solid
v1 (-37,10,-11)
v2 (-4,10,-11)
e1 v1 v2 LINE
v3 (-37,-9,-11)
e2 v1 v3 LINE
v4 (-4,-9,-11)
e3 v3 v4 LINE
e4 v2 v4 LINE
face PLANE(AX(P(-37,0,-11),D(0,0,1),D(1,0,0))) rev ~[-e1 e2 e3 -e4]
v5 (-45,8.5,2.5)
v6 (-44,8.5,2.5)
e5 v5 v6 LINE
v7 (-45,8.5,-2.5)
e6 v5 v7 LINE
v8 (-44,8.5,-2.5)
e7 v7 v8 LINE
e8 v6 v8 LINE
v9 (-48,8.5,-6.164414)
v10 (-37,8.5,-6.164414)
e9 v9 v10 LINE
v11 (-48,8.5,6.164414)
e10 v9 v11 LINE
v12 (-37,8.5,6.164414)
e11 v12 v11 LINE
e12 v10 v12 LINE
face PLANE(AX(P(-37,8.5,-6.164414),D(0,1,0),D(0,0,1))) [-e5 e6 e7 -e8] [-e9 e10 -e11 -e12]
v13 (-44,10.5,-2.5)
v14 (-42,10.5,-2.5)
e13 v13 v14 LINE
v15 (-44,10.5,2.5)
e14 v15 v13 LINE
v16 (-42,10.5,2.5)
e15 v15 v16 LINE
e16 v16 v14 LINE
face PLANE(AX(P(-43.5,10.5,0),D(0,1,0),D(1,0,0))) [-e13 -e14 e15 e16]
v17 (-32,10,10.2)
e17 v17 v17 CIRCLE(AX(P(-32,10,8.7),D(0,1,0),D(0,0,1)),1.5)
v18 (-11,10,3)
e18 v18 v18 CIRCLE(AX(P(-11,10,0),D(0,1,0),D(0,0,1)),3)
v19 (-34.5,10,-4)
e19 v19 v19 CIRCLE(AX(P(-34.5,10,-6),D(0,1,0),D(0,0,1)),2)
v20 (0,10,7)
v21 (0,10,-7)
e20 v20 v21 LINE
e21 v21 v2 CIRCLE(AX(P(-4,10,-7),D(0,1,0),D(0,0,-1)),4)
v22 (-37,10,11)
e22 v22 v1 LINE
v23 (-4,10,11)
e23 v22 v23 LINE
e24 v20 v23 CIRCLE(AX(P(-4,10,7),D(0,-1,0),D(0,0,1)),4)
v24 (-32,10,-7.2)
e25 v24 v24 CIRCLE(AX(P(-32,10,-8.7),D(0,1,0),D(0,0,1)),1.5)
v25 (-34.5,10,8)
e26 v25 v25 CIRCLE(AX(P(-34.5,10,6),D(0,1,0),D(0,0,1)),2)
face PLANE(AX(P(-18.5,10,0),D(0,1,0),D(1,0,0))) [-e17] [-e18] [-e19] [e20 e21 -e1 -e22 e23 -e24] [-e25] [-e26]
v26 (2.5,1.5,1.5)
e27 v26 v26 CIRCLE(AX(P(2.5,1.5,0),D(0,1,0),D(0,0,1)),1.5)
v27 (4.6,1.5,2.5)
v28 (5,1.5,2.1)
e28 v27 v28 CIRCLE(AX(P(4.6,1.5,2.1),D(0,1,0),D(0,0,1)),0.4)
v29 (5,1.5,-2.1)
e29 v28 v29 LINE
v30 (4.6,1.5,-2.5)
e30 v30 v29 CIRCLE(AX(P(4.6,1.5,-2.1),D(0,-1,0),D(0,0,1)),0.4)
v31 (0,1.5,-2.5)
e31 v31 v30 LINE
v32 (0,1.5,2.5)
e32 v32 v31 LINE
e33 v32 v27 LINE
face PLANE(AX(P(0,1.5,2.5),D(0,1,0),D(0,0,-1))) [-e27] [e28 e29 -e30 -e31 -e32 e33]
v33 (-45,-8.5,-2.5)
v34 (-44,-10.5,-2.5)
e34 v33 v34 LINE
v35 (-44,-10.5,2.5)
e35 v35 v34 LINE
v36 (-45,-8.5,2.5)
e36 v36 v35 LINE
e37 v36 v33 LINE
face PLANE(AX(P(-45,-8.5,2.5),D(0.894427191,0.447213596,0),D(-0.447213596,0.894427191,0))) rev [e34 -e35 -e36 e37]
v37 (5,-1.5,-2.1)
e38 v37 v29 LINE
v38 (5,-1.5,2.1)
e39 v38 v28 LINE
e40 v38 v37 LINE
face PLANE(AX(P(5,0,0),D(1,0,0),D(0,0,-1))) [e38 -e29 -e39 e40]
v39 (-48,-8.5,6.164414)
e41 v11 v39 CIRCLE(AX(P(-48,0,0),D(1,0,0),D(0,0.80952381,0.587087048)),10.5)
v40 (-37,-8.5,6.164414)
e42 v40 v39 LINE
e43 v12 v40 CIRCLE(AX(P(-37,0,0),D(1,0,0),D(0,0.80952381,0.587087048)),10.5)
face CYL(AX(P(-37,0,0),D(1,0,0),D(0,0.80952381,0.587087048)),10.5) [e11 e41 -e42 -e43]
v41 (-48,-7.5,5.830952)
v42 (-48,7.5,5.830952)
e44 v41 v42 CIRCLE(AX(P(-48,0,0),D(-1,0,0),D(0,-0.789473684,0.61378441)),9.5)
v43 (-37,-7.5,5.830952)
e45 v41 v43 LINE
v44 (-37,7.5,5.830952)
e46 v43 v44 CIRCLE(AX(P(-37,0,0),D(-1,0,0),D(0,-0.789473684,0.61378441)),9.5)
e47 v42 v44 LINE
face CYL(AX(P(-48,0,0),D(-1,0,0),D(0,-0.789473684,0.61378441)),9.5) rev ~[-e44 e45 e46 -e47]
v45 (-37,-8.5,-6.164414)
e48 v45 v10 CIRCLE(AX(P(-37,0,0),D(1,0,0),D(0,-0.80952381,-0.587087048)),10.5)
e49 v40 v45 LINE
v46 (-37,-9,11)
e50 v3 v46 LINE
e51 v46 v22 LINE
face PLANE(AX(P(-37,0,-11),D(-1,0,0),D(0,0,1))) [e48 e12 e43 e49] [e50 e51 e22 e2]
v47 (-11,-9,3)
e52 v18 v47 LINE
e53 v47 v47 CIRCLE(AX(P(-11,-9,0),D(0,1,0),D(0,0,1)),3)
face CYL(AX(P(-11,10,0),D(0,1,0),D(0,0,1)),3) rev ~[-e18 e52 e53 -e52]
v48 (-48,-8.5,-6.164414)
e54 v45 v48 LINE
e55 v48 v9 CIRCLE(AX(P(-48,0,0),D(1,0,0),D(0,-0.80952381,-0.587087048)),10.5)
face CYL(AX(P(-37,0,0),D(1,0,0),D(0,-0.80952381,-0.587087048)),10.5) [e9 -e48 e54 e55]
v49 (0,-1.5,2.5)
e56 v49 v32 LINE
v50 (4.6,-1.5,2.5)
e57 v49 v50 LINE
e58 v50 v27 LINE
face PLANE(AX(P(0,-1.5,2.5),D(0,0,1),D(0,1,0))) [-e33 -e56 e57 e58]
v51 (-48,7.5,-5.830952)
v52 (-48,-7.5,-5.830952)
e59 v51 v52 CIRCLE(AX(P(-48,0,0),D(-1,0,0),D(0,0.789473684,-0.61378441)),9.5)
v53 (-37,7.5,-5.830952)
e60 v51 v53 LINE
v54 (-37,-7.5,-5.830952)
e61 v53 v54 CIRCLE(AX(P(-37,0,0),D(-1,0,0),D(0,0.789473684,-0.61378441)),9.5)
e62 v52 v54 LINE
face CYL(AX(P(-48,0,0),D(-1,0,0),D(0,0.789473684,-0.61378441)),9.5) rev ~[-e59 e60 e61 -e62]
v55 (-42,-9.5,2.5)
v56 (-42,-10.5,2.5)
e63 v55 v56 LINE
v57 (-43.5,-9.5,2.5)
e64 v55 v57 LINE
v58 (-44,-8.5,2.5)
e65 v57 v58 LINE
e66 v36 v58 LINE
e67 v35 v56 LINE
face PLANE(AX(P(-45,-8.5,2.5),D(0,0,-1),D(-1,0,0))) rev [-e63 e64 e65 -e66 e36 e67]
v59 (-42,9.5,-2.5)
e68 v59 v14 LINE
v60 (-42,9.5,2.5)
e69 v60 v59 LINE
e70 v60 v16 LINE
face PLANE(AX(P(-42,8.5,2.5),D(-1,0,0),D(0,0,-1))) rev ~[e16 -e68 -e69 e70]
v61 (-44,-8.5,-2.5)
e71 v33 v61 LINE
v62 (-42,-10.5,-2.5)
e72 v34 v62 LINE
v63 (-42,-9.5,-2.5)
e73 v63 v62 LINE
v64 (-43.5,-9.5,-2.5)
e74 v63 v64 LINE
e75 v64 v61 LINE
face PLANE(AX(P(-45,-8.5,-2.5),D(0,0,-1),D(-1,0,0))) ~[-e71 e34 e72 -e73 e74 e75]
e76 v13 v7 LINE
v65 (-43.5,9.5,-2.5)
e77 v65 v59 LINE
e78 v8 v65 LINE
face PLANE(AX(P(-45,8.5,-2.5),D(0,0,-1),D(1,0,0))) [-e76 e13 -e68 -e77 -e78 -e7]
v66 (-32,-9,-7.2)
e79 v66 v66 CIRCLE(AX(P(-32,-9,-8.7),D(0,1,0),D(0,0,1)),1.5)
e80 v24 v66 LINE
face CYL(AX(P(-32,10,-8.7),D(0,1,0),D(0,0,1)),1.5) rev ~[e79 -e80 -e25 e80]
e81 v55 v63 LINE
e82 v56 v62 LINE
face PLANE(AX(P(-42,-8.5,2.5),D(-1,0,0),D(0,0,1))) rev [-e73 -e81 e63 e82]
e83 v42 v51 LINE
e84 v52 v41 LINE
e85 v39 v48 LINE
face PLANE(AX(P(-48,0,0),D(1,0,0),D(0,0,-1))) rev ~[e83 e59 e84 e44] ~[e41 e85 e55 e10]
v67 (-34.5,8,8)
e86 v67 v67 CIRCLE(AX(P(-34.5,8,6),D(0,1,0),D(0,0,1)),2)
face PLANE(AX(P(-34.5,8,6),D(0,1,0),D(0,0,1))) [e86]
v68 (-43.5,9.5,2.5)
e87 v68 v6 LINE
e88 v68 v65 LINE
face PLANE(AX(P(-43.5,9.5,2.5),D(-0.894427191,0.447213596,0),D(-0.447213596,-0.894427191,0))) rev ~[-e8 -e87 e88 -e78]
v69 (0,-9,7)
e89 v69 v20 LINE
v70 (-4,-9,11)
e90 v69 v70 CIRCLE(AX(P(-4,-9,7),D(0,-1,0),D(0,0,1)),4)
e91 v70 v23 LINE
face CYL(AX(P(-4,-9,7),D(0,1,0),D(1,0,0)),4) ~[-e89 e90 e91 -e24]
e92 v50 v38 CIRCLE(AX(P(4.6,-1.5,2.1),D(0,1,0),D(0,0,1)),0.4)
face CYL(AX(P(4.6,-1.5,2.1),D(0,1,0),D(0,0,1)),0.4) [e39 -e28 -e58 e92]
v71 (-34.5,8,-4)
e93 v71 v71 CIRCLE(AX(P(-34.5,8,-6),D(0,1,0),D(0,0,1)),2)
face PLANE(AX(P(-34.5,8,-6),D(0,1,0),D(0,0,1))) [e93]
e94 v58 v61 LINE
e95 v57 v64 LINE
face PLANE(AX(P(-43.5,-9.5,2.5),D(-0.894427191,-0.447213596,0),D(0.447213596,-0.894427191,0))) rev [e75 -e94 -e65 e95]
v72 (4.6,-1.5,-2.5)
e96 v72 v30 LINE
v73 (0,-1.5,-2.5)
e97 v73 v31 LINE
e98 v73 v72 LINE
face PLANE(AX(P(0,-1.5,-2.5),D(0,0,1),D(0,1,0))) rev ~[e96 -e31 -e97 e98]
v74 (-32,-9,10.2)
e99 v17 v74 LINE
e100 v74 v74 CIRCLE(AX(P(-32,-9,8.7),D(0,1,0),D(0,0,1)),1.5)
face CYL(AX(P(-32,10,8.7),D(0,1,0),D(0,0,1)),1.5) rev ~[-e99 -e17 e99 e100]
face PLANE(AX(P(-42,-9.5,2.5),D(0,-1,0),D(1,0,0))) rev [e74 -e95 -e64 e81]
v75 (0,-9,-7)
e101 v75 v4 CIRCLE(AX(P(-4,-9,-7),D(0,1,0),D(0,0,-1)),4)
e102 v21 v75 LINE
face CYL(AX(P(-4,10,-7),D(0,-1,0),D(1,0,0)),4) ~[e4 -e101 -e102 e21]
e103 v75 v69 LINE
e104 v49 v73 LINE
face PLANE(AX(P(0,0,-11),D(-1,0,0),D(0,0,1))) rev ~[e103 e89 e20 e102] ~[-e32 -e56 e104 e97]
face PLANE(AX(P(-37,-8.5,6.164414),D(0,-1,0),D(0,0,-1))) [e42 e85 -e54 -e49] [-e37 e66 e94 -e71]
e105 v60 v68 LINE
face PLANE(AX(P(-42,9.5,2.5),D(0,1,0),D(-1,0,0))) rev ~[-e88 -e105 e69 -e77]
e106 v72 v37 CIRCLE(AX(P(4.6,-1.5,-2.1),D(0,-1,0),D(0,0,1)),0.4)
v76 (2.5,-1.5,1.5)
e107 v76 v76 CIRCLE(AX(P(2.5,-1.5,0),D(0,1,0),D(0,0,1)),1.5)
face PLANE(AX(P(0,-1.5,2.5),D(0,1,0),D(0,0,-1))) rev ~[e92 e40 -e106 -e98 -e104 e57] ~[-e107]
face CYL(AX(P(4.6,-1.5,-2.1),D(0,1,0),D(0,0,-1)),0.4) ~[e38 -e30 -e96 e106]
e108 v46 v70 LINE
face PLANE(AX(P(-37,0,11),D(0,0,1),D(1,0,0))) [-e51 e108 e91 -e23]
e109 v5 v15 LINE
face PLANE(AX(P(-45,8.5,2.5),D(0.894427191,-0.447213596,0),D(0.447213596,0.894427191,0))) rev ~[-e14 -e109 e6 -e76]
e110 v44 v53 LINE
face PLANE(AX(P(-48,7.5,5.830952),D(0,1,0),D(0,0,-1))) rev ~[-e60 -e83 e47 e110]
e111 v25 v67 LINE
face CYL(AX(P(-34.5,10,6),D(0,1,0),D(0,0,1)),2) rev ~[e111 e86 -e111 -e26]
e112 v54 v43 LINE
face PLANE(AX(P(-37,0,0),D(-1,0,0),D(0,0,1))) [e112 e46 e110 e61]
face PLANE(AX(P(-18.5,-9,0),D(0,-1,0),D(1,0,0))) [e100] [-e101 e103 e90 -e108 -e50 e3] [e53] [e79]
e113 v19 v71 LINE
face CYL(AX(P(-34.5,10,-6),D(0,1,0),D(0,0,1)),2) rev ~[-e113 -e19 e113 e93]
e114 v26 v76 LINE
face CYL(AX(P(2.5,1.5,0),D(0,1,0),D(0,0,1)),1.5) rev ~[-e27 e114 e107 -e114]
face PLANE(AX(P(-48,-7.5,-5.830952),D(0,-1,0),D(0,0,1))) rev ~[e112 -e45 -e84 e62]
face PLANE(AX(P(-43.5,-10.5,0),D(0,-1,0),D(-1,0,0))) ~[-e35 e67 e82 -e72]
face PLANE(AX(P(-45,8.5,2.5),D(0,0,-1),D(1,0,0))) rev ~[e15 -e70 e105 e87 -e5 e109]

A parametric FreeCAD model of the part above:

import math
import FreeCAD as App
import Part
import Sketcher
from FreeCAD import Vector
Q = App.Units.Quantity


def edges_at(feature, points):
    """Names of the edges that pass closest to the given points."""
    edges = feature.Shape.Edges
    near = lambda p: min(range(len(edges)), key=lambda i: edges[i].distToShape(Part.Vertex(*p))[0])
    return sorted({f"Edge{near(p) + 1}" for p in points})

doc = App.newDocument("Part")
body = doc.addObject("PartDesign::Body", "Body")

sketch1 = doc.addObject("Sketcher::SketchObject", "Sketch")
body.addObject(sketch1)
sketch1.AttachmentSupport = (doc.XZ_Plane, [""])
sketch1.MapMode = "FlatFace"
sketch1.addGeometry([
    Part.LineSegment(Vector(-37, -11, 0), Vector(-37, 11, 0)),
    Part.LineSegment(Vector(-37, 11, 0), Vector(0, 11, 0)),
    Part.LineSegment(Vector(0, 11, 0), Vector(0, -11, 0)),
    Part.LineSegment(Vector(0, -11, 0), Vector(-37, -11, 0)),
], False)
sketch1.addConstraint([
    Sketcher.Constraint("Coincident", 0, 2, 1, 1),
    Sketcher.Constraint("Coincident", 1, 2, 2, 1),
    Sketcher.Constraint("Coincident", 2, 2, 3, 1),
    Sketcher.Constraint("Coincident", 3, 2, 0, 1),
    Sketcher.Constraint("Vertical", 0),
    Sketcher.Constraint("Horizontal", 1),
    Sketcher.Constraint("Vertical", 2),
    Sketcher.Constraint("Horizontal", 3),
    Sketcher.Constraint("Symmetric", 1, 2, 2, 2, -1, 1),
    Sketcher.Constraint("DistanceX", 1, 1, 1, 2, Q("37 mm")),
    Sketcher.Constraint("DistanceY", 0, 1, 0, 2, Q("22 mm")),
])
pad1 = doc.addObject("PartDesign::Pad", "Pad")
body.addObject(pad1)
pad1.Profile = sketch1
pad1.Length = 10
pad1.Reversed = True

sketch2 = doc.addObject("Sketcher::SketchObject", "Sketch001")
body.addObject(sketch2)
sketch2.AttachmentSupport = (doc.XZ_Plane, [""])
sketch2.MapMode = "FlatFace"
sketch2.addGeometry([
    Part.LineSegment(Vector(-37, 11, 0), Vector(-37, -11, 0)),
    Part.LineSegment(Vector(-37, -11, 0), Vector(0, -11, 0)),
    Part.LineSegment(Vector(0, -11, 0), Vector(0, 11, 0)),
    Part.LineSegment(Vector(0, 11, 0), Vector(-37, 11, 0)),
], False)
sketch2.addConstraint([
    Sketcher.Constraint("Coincident", 0, 2, 1, 1),
    Sketcher.Constraint("Coincident", 1, 2, 2, 1),
    Sketcher.Constraint("Coincident", 2, 2, 3, 1),
    Sketcher.Constraint("Coincident", 3, 2, 0, 1),
    Sketcher.Constraint("Vertical", 0),
    Sketcher.Constraint("Horizontal", 1),
    Sketcher.Constraint("Vertical", 2),
    Sketcher.Constraint("Horizontal", 3),
    Sketcher.Constraint("Symmetric", 1, 2, 2, 2, -1, 1),
    Sketcher.Constraint("DistanceX", 1, 1, 1, 2, Q("37 mm")),
    Sketcher.Constraint("DistanceY", 0, 2, 0, 1, Q("22 mm")),
])
pad2 = doc.addObject("PartDesign::Pad", "Pad001")
body.addObject(pad2)
pad2.Profile = sketch2
pad2.Length = 9

sketch3 = doc.addObject("Sketcher::SketchObject", "Sketch002")
body.addObject(sketch3)
sketch3.AttachmentSupport = (doc.YZ_Plane, [""])
sketch3.MapMode = "FlatFace"
sketch3.addGeometry([
    Part.LineSegment(Vector(1.5, 2.5, 0), Vector(-1.5, 2.5, 0)),
    Part.LineSegment(Vector(-1.5, 2.5, 0), Vector(-1.5, -2.5, 0)),
    Part.LineSegment(Vector(-1.5, -2.5, 0), Vector(1.5, -2.5, 0)),
    Part.LineSegment(Vector(1.5, -2.5, 0), Vector(1.5, 2.5, 0)),
], False)
sketch3.addConstraint([
    Sketcher.Constraint("Coincident", 0, 2, 1, 1),
    Sketcher.Constraint("Coincident", 1, 2, 2, 1),
    Sketcher.Constraint("Coincident", 2, 2, 3, 1),
    Sketcher.Constraint("Coincident", 3, 2, 0, 1),
    Sketcher.Constraint("Horizontal", 0),
    Sketcher.Constraint("Vertical", 1),
    Sketcher.Constraint("Horizontal", 2),
    Sketcher.Constraint("Vertical", 3),
    Sketcher.Constraint("Symmetric", 0, 2, 2, 2, -1, 1),
    Sketcher.Constraint("DistanceX", 0, 2, 0, 1, Q("3 mm")),
    Sketcher.Constraint("DistanceY", 1, 2, 1, 1, Q("5 mm")),
])
pad3 = doc.addObject("PartDesign::Pad", "Pad002")
body.addObject(pad3)
pad3.Profile = sketch3
pad3.Length = 5

sketch4 = doc.addObject("Sketcher::SketchObject", "Sketch003")
body.addObject(sketch4)
sketch4.AttachmentSupport = (doc.XZ_Plane, [""])
sketch4.MapMode = "FlatFace"
sketch4.AttachmentOffset = App.Placement(Vector(0, 0, -1.5), App.Rotation())
sketch4.addGeometry(Part.Circle(Vector(2.5, 0, 0), Vector(0, 0, 1), 1.5), False)
sketch4.addConstraint([
    Sketcher.Constraint("PointOnObject", 0, 3, -1),
    Sketcher.Constraint("Diameter", 0, Q("3 mm")),
    Sketcher.Constraint("DistanceX", -1, 1, 0, 3, Q("2.5 mm")),
])
pocket1 = doc.addObject("PartDesign::Pocket", "Pocket")
body.addObject(pocket1)
pocket1.Profile = sketch4
pocket1.Length = 5
pocket1.Reversed = True
doc.recompute()

fillet = doc.addObject("PartDesign::Fillet", "Fillet")
body.addObject(fillet)
fillet.Base = (pocket1, edges_at(pocket1, [(5, 0, -2.5), (5, 0, 2.5)]))
fillet.Radius = 0.4
doc.recompute()

fillet2 = doc.addObject("PartDesign::Fillet", "Fillet001")
body.addObject(fillet2)
fillet2.Base = (fillet, edges_at(fillet, [(0, 0.5, 11), (0, 0.5, -11)]))
fillet2.Radius = 4

sketch5 = doc.addObject("Sketcher::SketchObject", "Sketch004")
body.addObject(sketch5)
sketch5.AttachmentSupport = (doc.XZ_Plane, [""])
sketch5.MapMode = "FlatFace"
sketch5.AttachmentOffset = App.Placement(Vector(0, 0, -10), App.Rotation())
sketch5.addGeometry(Part.Circle(Vector(-11, 0, 0), Vector(0, 0, 1), 3), False)
sketch5.addConstraint([
    Sketcher.Constraint("PointOnObject", 0, 3, -1),
    Sketcher.Constraint("Diameter", 0, Q("6 mm")),
    Sketcher.Constraint("DistanceX", 0, 3, -1, 1, Q("11 mm")),
])
pocket2 = doc.addObject("PartDesign::Pocket", "Pocket001")
body.addObject(pocket2)
pocket2.Profile = sketch5
pocket2.Type = "ThroughAll"
pocket2.Reversed = True

sketch6 = doc.addObject("Sketcher::SketchObject", "Sketch005")
body.addObject(sketch6)
sketch6.AttachmentSupport = (doc.XZ_Plane, [""])
sketch6.MapMode = "FlatFace"
sketch6.AttachmentOffset = App.Placement(Vector(0, 0, -10), App.Rotation())
sketch6.addGeometry([
    Part.Circle(Vector(-32, -8.7, 0), Vector(0, 0, 1), 1.5),
    Part.Circle(Vector(-32, 8.7, 0), Vector(0, 0, 1), 1.5),
], False)
sketch6.addConstraint([
    Sketcher.Constraint("Equal", 0, 1),
    Sketcher.Constraint("Symmetric", 0, 3, 1, 3, -1),
    Sketcher.Constraint("Diameter", 0, Q("3 mm")),
    Sketcher.Constraint("DistanceX", 0, 3, -1, 1, Q("32 mm")),
    Sketcher.Constraint("DistanceY", 0, 3, -1, 1, Q("8.7 mm")),
])
pocket3 = doc.addObject("PartDesign::Pocket", "Pocket002")
body.addObject(pocket3)
pocket3.Profile = sketch6
pocket3.Type = "ThroughAll"
pocket3.Reversed = True

sketch7 = doc.addObject("Sketcher::SketchObject", "Sketch006")
body.addObject(sketch7)
sketch7.AttachmentSupport = (doc.XZ_Plane, [""])
sketch7.MapMode = "FlatFace"
sketch7.AttachmentOffset = App.Placement(Vector(0, 0, -10), App.Rotation())
sketch7.addGeometry([
    Part.Circle(Vector(-34.5, -6, 0), Vector(0, 0, 1), 2),
    Part.Circle(Vector(-34.5, 6, 0), Vector(0, 0, 1), 2),
], False)
sketch7.addConstraint([
    Sketcher.Constraint("Equal", 0, 1),
    Sketcher.Constraint("Symmetric", 0, 3, 1, 3, -1),
    Sketcher.Constraint("Diameter", 0, Q("4 mm")),
    Sketcher.Constraint("DistanceY", 0, 3, -1, 1, Q("6 mm")),
    Sketcher.Constraint("DistanceX", 0, 3, -1, 1, Q("34.5 mm")),
])
pocket4 = doc.addObject("PartDesign::Pocket", "Pocket003")
body.addObject(pocket4)
pocket4.Profile = sketch7
pocket4.Length = 2
pocket4.Reversed = True

sketch8 = doc.addObject("Sketcher::SketchObject", "Sketch007")
body.addObject(sketch8)
sketch8.AttachmentSupport = (doc.YZ_Plane, [""])
sketch8.MapMode = "FlatFace"
sketch8.AttachmentOffset = App.Placement(Vector(0, 0, -37), App.Rotation())
sketch8.addGeometry([
    Part.LineSegment(Vector(8, 6, 0), Vector(8, -6, 0)),
    Part.ArcOfCircle(Part.Circle(Vector(0, 0, 0), Vector(0, 0, 1), 10), math.radians(-144), math.radians(-36)),
    Part.LineSegment(Vector(-8, -6, 0), Vector(-8, 6, 0)),
    Part.ArcOfCircle(Part.Circle(Vector(0, 0, 0), Vector(0, 0, 1), 10), math.radians(36), math.radians(144)),
], False)
sketch8.addConstraint([
    Sketcher.Constraint("Coincident", 0, 2, 1, 2),
    Sketcher.Constraint("Coincident", 1, 1, 2, 1),
    Sketcher.Constraint("Coincident", 2, 2, 3, 2),
    Sketcher.Constraint("Coincident", 3, 1, 0, 1),
    Sketcher.Constraint("Vertical", 0),
    Sketcher.Constraint("Vertical", 2),
    Sketcher.Constraint("Coincident", 1, 3, -1, 1),
    Sketcher.Constraint("Coincident", 3, 3, -1, 1),
    Sketcher.Constraint("Equal", 1, 3),
    Sketcher.Constraint("Horizontal", 0, 2, 1, 1),
    Sketcher.Constraint("Radius", 1, Q("10.5 mm")),
    Sketcher.Constraint("DistanceX", 1, 1, 0, 2, Q("17 mm")),
])
pad4 = doc.addObject("PartDesign::Pad", "Pad003")
body.addObject(pad4)
pad4.Profile = sketch8
pad4.Length = 11
pad4.Reversed = True

sketch9 = doc.addObject("Sketcher::SketchObject", "Sketch008")
body.addObject(sketch9)
sketch9.AttachmentSupport = (doc.YZ_Plane, [""])
sketch9.MapMode = "FlatFace"
sketch9.AttachmentOffset = App.Placement(Vector(0, 0, -48), App.Rotation())
sketch9.addGeometry([
    Part.LineSegment(Vector(-8, -6, 0), Vector(-8, 6, 0)),
    Part.ArcOfCircle(Part.Circle(Vector(0, 0, 0), Vector(0, 0, 1), 10), math.radians(38), math.radians(142)),
    Part.LineSegment(Vector(8, 6, 0), Vector(8, -6, 0)),
    Part.ArcOfCircle(Part.Circle(Vector(0, 0, 0), Vector(0, 0, 1), 10), math.radians(-142), math.radians(-38)),
], False)
sketch9.addConstraint([
    Sketcher.Constraint("Coincident", 0, 2, 1, 2),
    Sketcher.Constraint("Coincident", 1, 1, 2, 1),
    Sketcher.Constraint("Coincident", 2, 2, 3, 2),
    Sketcher.Constraint("Coincident", 3, 1, 0, 1),
    Sketcher.Constraint("Vertical", 0),
    Sketcher.Constraint("Vertical", 2),
    Sketcher.Constraint("Coincident", 1, 3, -1, 1),
    Sketcher.Constraint("Coincident", 3, 3, -1, 1),
    Sketcher.Constraint("Equal", 1, 3),
    Sketcher.Constraint("Horizontal", 0, 2, 1, 1),
    Sketcher.Constraint("Radius", 1, Q("9.5 mm")),
    Sketcher.Constraint("DistanceX", 0, 2, 1, 1, Q("15 mm")),
])
pocket5 = doc.addObject("PartDesign::Pocket", "Pocket004")
body.addObject(pocket5)
pocket5.Profile = sketch9
pocket5.Length = 11
pocket5.Reversed = True

sketch10 = doc.addObject("Sketcher::SketchObject", "Sketch009")
body.addObject(sketch10)
sketch10.AttachmentSupport = (doc.XZ_Plane, [""])
sketch10.MapMode = "FlatFace"
sketch10.AttachmentOffset = App.Placement(Vector(0, 0, -8.5), App.Rotation())
sketch10.addGeometry([
    Part.LineSegment(Vector(-45, -2.5, 0), Vector(-45, 2.5, 0)),
    Part.LineSegment(Vector(-45, 2.5, 0), Vector(-42, 2.5, 0)),
    Part.LineSegment(Vector(-42, 2.5, 0), Vector(-42, -2.5, 0)),
    Part.LineSegment(Vector(-42, -2.5, 0), Vector(-45, -2.5, 0)),
], False)
sketch10.addConstraint([
    Sketcher.Constraint("Coincident", 0, 2, 1, 1),
    Sketcher.Constraint("Coincident", 1, 2, 2, 1),
    Sketcher.Constraint("Coincident", 2, 2, 3, 1),
    Sketcher.Constraint("Coincident", 3, 2, 0, 1),
    Sketcher.Constraint("Vertical", 0),
    Sketcher.Constraint("Horizontal", 1),
    Sketcher.Constraint("Vertical", 2),
    Sketcher.Constraint("Horizontal", 3),
    Sketcher.Constraint("DistanceX", 1, 1, 1, 2, Q("3 mm")),
    Sketcher.Constraint("DistanceY", 0, 1, 0, 2, Q("5 mm")),
    Sketcher.Constraint("DistanceX", 0, 2, -1, 1, Q("45 mm")),
    Sketcher.Constraint("DistanceY", -1, 1, 0, 2, Q("2.5 mm")),
])
pad5 = doc.addObject("PartDesign::Pad", "Pad004")
body.addObject(pad5)
pad5.Profile = sketch10
pad5.Length = 2
pad5.Reversed = True

sketch11 = doc.addObject("Sketcher::SketchObject", "Sketch010")
body.addObject(sketch11)
sketch11.AttachmentSupport = (doc.XY_Plane, [""])
sketch11.MapMode = "FlatFace"
sketch11.AttachmentOffset = App.Placement(Vector(0, 0, 2.5), App.Rotation())
sketch11.addGeometry([
    Part.LineSegment(Vector(-44, 10.5, 0), Vector(-45, 10.5, 0)),
    Part.LineSegment(Vector(-45, 10.5, 0), Vector(-45, 8.5, 0)),
    Part.LineSegment(Vector(-45, 8.5, 0), Vector(-44, 10.5, 0)),
    Part.LineSegment(Vector(-42, 9.5, 0), Vector(-43.5, 9.5, 0)),
    Part.LineSegment(Vector(-43.5, 9.5, 0), Vector(-44, 8.5, 0)),
    Part.LineSegment(Vector(-44, 8.5, 0), Vector(-42, 8.5, 0)),
    Part.LineSegment(Vector(-42, 8.5, 0), Vector(-42, 9.5, 0)),
], False)
sketch11.addConstraint([
    Sketcher.Constraint("Coincident", 0, 2, 1, 1),
    Sketcher.Constraint("Coincident", 1, 2, 2, 1),
    Sketcher.Constraint("Coincident", 2, 2, 0, 1),
    Sketcher.Constraint("Coincident", 3, 2, 4, 1),
    Sketcher.Constraint("Coincident", 4, 2, 5, 1),
    Sketcher.Constraint("Coincident", 5, 2, 6, 1),
    Sketcher.Constraint("Coincident", 6, 2, 3, 1),
    Sketcher.Constraint("Horizontal", 0),
    Sketcher.Constraint("Vertical", 1),
    Sketcher.Constraint("Horizontal", 3),
    Sketcher.Constraint("Horizontal", 5),
    Sketcher.Constraint("Vertical", 6),
    Sketcher.Constraint("Parallel", 2, 4),
    Sketcher.Constraint("Horizontal", 1, 2, 4, 2),
    Sketcher.Constraint("Vertical", 2, 2, 4, 2),
    Sketcher.Constraint("Equal", 5, 1),
    Sketcher.Constraint("Equal", 0, 6),
    Sketcher.Constraint("DistanceX", 0, 2, 0, 1, Q("1 mm")),
    Sketcher.Constraint("DistanceX", 5, 1, 5, 2, Q("2 mm")),
    Sketcher.Constraint("DistanceX", 0, 2, -1, 1, Q("45 mm")),
    Sketcher.Constraint("DistanceY", -1, 1, 0, 2, Q("10.5 mm")),
])
pocket6 = doc.addObject("PartDesign::Pocket", "Pocket005")
body.addObject(pocket6)
pocket6.Profile = sketch11
pocket6.Type = "ThroughAll"
doc.recompute()

mirrored = doc.addObject("PartDesign::Mirrored", "Mirrored")
body.addObject(mirrored)
mirrored.Originals = [pad5]
mirrored.MirrorPlane = (doc.XZ_Plane, [""])
body.Tip = mirrored
doc.recompute()

mirrored2 = doc.addObject("PartDesign::Mirrored", "Mirrored001")
body.addObject(mirrored2)
mirrored2.Originals = [pocket6]
mirrored2.MirrorPlane = (doc.XZ_Plane, [""])
body.Tip = mirrored2

doc.recompute()
